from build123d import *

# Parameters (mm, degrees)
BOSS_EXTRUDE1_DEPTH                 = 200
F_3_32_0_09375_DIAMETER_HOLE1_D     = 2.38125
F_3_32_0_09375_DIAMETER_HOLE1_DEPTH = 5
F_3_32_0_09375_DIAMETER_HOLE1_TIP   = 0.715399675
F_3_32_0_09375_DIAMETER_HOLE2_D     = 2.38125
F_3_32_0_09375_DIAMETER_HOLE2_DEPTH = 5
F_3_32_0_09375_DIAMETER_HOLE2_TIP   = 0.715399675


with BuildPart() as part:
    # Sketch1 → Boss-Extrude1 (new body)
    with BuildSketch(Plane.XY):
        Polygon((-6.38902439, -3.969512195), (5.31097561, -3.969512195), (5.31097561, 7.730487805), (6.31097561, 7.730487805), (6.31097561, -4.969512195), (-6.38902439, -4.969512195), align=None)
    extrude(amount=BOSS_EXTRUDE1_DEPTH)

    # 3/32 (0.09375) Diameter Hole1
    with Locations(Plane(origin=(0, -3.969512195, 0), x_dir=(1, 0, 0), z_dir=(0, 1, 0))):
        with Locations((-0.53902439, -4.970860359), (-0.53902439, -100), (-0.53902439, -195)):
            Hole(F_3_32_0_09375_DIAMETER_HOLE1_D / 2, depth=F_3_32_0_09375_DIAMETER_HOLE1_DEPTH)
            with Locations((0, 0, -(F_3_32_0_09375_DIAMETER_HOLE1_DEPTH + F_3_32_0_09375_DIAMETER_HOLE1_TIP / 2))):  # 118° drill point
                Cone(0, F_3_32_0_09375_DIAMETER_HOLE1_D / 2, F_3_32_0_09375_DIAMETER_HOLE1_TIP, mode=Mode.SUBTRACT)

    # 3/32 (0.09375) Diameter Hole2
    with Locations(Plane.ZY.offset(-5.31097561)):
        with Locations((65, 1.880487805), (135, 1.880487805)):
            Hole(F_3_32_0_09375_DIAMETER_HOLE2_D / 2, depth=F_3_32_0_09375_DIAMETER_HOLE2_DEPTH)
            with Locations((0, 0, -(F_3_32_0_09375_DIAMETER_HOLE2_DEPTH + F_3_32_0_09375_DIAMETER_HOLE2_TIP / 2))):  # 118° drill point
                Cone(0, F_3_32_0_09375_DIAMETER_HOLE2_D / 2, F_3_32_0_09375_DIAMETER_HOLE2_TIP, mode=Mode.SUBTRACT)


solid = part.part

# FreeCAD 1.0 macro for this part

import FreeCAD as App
import Part
import Sketcher
from FreeCAD import Vector
Q = App.Units.Quantity

doc = App.newDocument("Part")
body = doc.addObject("PartDesign::Body", "Body")

sketch1 = body.newObject("Sketcher::SketchObject", "Sketch")
sketch1.AttachmentSupport = (doc.getObject("XY_Plane"), [""])
sketch1.MapMode = "FlatFace"
sketch1.addGeometry([
    Part.LineSegment(Vector(5.3, -4, 0), Vector(-6.4, -4, 0)),
    Part.LineSegment(Vector(-6.4, -4, 0), Vector(-6.4, -5, 0)),
    Part.LineSegment(Vector(-6.4, -5, 0), Vector(6.3, -5, 0)),
    Part.LineSegment(Vector(6.3, -5, 0), Vector(6.3, 7.7, 0)),
    Part.LineSegment(Vector(6.3, 7.7, 0), Vector(5.3, 7.7, 0)),
    Part.LineSegment(Vector(5.3, 7.7, 0), Vector(5.3, -4, 0)),
], False)
sketch1.addConstraint([
    Sketcher.Constraint("Coincident", 0, 2, 1, 1),
    Sketcher.Constraint("Coincident", 1, 2, 2, 1),
    Sketcher.Constraint("Coincident", 2, 2, 3, 1),
    Sketcher.Constraint("Coincident", 3, 2, 4, 1),
    Sketcher.Constraint("Coincident", 4, 2, 5, 1),
    Sketcher.Constraint("Coincident", 5, 2, 0, 1),
    Sketcher.Constraint("Horizontal", 0),
    Sketcher.Constraint("Vertical", 1),
    Sketcher.Constraint("Horizontal", 2),
    Sketcher.Constraint("Vertical", 3),
    Sketcher.Constraint("Horizontal", 4),
    Sketcher.Constraint("Vertical", 5),
    Sketcher.Constraint("Equal", 4, 1),
    Sketcher.Constraint("Equal", 2, 3),
    Sketcher.Constraint("DistanceX", 4, 2, 4, 1, Q("1 mm")),
    Sketcher.Constraint("DistanceX", 0, 2, 0, 1, Q("11.7 mm")),
    Sketcher.Constraint("DistanceX", 0, 2, -1, 1, Q("6.389024 mm")),
    Sketcher.Constraint("DistanceY", 0, 2, -1, 1, Q("3.969512 mm")),
])
pad1 = body.newObject("PartDesign::Pad", "Pad")
pad1.Profile = sketch1
pad1.Length = 200

sketch2 = body.newObject("Sketcher::SketchObject", "Sketch001")
sketch2.AttachmentSupport = (doc.getObject("XZ_Plane"), [""])
sketch2.MapMode = "FlatFace"
sketch2.AttachmentOffset = App.Placement(Vector(0, 0, 3.969512), App.Rotation())
sketch2.addGeometry([
    Part.Circle(Vector(-0.5, 5, 0), Vector(0, 0, 1), 1.2),
    Part.Circle(Vector(-0.5, 100, 0), Vector(0, 0, 1), 1.2),
    Part.Circle(Vector(-0.5, 195, 0), Vector(0, 0, 1), 1.2),
], False)
sketch2.addConstraint([
    Sketcher.Constraint("Equal", 0, 1),
    Sketcher.Constraint("Equal", 1, 2),
    Sketcher.Constraint("Vertical", 0, 3, 1, 3),
    Sketcher.Constraint("Vertical", 1, 3, 2, 3),
    Sketcher.Constraint("DistanceY", -1, 1, 1, 3, Q("100 mm")),
    Sketcher.Constraint("DistanceY", -1, 1, 2, 3, Q("195 mm")),
    Sketcher.Constraint("Diameter", 0, Q("2.38125 mm")),
    Sketcher.Constraint("DistanceY", -1, 1, 0, 3, Q("4.97086 mm")),
    Sketcher.Constraint("DistanceX", 0, 3, -1, 1, Q("0.539024 mm")),
])
doc.recompute()
hole = body.newObject("PartDesign::Hole", "Hole")
hole.Profile = sketch2
hole.ThreadType = "None"
hole.Diameter = 2.38125
hole.DepthType = "Dimension"
hole.Depth = 5
hole.DrillPoint = "Angled"
hole.DrillPointAngle = 118
hole.Reversed = True

sketch3 = body.newObject("Sketcher::SketchObject", "Sketch002")
sketch3.AttachmentSupport = (doc.getObject("YZ_Plane"), [""])
sketch3.MapMode = "FlatFace"
sketch3.AttachmentOffset = App.Placement(Vector(0, 0, 5.310976), App.Rotation())
sketch3.addGeometry([
    Part.Circle(Vector(1.9, 65, 0), Vector(0, 0, 1), 1.2),
    Part.Circle(Vector(1.9, 135, 0), Vector(0, 0, 1), 1.2),
], False)
sketch3.addConstraint([
    Sketcher.Constraint("Equal", 0, 1),
    Sketcher.Constraint("Vertical", 0, 3, 1, 3),
    Sketcher.Constraint("DistanceY", -1, 1, 0, 3, Q("65 mm")),
    Sketcher.Constraint("DistanceY", -1, 1, 1, 3, Q("135 mm")),
    Sketcher.Constraint("Diameter", 0, Q("2.38125 mm")),
    Sketcher.Constraint("DistanceX", -1, 1, 0, 3, Q("1.880488 mm")),
])
doc.recompute()
hole2 = body.newObject("PartDesign::Hole", "Hole001")
hole2.Profile = sketch3
hole2.ThreadType = "None"
hole2.Diameter = 2.38125
hole2.DepthType = "Dimension"
hole2.Depth = 5
hole2.DrillPoint = "Angled"
hole2.DrillPointAngle = 118
hole2.Reversed = True

doc.recompute()
